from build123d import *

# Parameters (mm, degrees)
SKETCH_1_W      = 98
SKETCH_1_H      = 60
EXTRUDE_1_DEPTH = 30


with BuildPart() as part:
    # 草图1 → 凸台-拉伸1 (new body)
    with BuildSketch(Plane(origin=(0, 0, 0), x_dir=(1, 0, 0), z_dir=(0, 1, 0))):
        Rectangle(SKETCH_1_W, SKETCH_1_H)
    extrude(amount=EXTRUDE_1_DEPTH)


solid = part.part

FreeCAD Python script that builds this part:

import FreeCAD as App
import Part
import Sketcher

doc = App.newDocument("Part")
params = doc.addObject("Spreadsheet::Sheet", "Params")
for row, (alias, value) in enumerate([
    ("sketch1_width", "98 mm"),
    ("sketch1_height", "60 mm"),
    ("pad1_length", "30 mm"),
], start=1):
    params.set(f"A{row}", alias)
    params.set(f"B{row}", "=" + value)
    params.setAlias(f"B{row}", alias)

body = doc.addObject("PartDesign::Body", "Body")

# Sketch on XZ plane
sketch1 = doc.addObject("Sketcher::SketchObject", "Sketch")
body.addObject(sketch1)
sketch1.AttachmentSupport = (doc.XZ_Plane, [""])
sketch1.MapMode = "FlatFace"
sketch1.addGeometry([
    Part.LineSegment(App.Vector(-49, -30, 0), App.Vector(-49, 30, 0)),
    Part.LineSegment(App.Vector(-49, 30, 0), App.Vector(49, 30, 0)),
    Part.LineSegment(App.Vector(49, 30, 0), App.Vector(49, -30, 0)),
    Part.LineSegment(App.Vector(49, -30, 0), App.Vector(-49, -30, 0)),
], False)
sketch1.addConstraint([
    Sketcher.Constraint("Coincident", 0, 2, 1, 1),
    Sketcher.Constraint("Coincident", 1, 2, 2, 1),
    Sketcher.Constraint("Coincident", 2, 2, 3, 1),
    Sketcher.Constraint("Coincident", 3, 2, 0, 1),
    Sketcher.Constraint("Vertical", 0),
    Sketcher.Constraint("Horizontal", 1),
    Sketcher.Constraint("Vertical", 2),
    Sketcher.Constraint("Horizontal", 3),
    Sketcher.Constraint("Symmetric", 0, 2, 2, 2, -1, 1),
    Sketcher.Constraint("DistanceX", 1, 1, 1, 2, 98.0),
    Sketcher.Constraint("DistanceY", 0, 1, 0, 2, 60.0),
])
sketch1.setExpression("Constraints[9]", "Params.sketch1_width")
sketch1.setExpression("Constraints[10]", "Params.sketch1_height")
pad1 = doc.addObject("PartDesign::Pad", "Pad")
body.addObject(pad1)
pad1.Profile = sketch1
pad1.setExpression("Length", "Params.pad1_length")
pad1.Reversed = True

doc.recompute()
